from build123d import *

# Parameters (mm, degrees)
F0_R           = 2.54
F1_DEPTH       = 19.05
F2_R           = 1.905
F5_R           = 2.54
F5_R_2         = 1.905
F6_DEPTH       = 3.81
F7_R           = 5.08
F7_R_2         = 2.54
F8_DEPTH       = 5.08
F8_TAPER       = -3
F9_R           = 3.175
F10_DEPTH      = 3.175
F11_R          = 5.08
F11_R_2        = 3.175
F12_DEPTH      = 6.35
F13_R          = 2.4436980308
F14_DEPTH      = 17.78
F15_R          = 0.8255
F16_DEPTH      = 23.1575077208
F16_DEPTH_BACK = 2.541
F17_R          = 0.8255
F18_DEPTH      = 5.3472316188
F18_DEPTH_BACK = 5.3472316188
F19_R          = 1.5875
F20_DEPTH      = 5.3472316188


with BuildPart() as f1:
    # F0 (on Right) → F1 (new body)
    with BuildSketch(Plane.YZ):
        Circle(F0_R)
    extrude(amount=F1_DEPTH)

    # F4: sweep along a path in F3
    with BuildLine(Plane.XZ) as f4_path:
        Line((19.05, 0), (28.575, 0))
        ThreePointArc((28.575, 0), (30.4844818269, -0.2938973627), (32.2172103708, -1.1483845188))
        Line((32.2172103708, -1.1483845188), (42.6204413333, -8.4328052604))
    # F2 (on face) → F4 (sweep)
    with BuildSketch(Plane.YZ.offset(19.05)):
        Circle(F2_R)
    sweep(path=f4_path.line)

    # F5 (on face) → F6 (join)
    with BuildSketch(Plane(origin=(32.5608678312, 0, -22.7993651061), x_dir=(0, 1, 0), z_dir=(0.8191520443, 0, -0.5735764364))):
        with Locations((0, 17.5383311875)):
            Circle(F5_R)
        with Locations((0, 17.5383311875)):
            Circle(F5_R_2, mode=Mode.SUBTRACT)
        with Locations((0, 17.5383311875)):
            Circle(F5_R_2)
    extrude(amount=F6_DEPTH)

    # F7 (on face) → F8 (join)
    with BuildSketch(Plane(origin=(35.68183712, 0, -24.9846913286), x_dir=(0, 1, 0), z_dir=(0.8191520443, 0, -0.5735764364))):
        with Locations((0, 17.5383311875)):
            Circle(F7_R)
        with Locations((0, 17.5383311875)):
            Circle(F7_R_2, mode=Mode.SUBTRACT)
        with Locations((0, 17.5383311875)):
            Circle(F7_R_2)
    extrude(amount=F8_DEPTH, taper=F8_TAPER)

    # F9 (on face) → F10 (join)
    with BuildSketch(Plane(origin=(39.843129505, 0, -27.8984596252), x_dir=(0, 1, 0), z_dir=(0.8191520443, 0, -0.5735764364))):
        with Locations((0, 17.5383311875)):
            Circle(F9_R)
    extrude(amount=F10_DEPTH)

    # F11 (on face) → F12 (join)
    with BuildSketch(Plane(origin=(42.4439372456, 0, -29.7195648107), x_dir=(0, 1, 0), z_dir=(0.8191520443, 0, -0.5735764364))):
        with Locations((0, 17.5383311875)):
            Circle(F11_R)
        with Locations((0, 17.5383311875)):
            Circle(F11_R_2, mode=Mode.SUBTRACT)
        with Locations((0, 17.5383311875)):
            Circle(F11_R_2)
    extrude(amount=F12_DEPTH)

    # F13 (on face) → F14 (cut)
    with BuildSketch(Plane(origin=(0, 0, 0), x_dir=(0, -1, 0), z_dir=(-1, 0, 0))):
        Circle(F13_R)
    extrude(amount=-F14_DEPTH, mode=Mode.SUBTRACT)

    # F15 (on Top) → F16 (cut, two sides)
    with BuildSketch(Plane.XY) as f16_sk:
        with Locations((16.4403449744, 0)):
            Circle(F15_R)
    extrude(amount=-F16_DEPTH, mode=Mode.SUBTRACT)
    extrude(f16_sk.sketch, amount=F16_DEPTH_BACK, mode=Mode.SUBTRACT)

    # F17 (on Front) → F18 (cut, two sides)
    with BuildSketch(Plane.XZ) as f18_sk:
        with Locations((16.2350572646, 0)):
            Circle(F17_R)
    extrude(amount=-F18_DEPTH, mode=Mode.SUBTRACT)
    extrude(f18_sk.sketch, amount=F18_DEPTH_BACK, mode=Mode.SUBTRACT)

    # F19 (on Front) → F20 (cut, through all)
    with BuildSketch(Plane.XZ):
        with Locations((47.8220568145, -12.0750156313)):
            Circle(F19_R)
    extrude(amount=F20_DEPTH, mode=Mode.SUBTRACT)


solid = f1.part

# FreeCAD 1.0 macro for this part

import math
import FreeCAD as App
import Part
import Sketcher
Q = App.Units.Quantity

doc = App.newDocument("Part")
body = doc.addObject("PartDesign::Body", "Body")

# Sketch on YZ plane
sketch1 = body.newObject("Sketcher::SketchObject", "Sketch")
sketch1.AttachmentSupport = (doc.getObject("YZ_Plane"), [""])
sketch1.MapMode = "FlatFace"
sketch1.addGeometry(Part.Circle(App.Vector(0, 0, 0), App.Vector(0, 0, 1), 2.54), False)
sketch1.addConstraint(Sketcher.Constraint("Coincident", 0, 3, -1, 1))
sketch1.addConstraint(Sketcher.Constraint("Diameter", 0, Q("0.2 in")))
pad1 = body.newObject("PartDesign::Pad", "Pad")
pad1.Profile = sketch1
pad1.Length = Q("0.75 in")

# Sketch on YZ plane
sketch2 = body.newObject("Sketcher::SketchObject", "Sketch001")
sketch2.AttachmentSupport = (doc.getObject("YZ_Plane"), [""])
sketch2.MapMode = "FlatFace"
sketch2.AttachmentOffset = App.Placement(App.Vector(0, 0, 0.75 * 25.4), App.Rotation())
sketch2.addGeometry(Part.Circle(App.Vector(0, 0, 0), App.Vector(0, 0, 1), 1.905), False)
sketch2.addConstraint(Sketcher.Constraint("Coincident", 0, 3, -1, 1))
sketch2.addConstraint(Sketcher.Constraint("Diameter", 0, Q("0.15 in")))

# Sketch on XZ plane
sketch3 = body.newObject("Sketcher::SketchObject", "Sketch002")
sketch3.AttachmentSupport = (doc.getObject("XZ_Plane"), [""])
sketch3.MapMode = "FlatFace"
sketch3.addGeometry(Part.LineSegment(App.Vector(19.05, 0, 0), App.Vector(28.575, 0, 0)), False)
sketch3.addGeometry(Part.ArcOfCircle(Part.Circle(App.Vector(28.575, -6.35, 0), App.Vector(0, 0, 1), 6.35), math.radians(55), math.radians(90)), False)
sketch3.addGeometry(Part.LineSegment(App.Vector(32.21721, -1.148385, 0), App.Vector(42.620441, -8.432805, 0)), False)
sketch3.addConstraint(Sketcher.Constraint("Tangent", 0, 2, 1, 2))
sketch3.addConstraint(Sketcher.Constraint("Tangent", 1, 1, 2, 1))
sketch3.addConstraint(Sketcher.Constraint("Horizontal", 0))
sketch3.addConstraint(Sketcher.Constraint("PointOnObject", 0, 1, -1))
sketch3.addConstraint(Sketcher.Constraint("Radius", 1, Q("0.25 in")))
sketch3.addConstraint(Sketcher.Constraint("Angle", 2, Q("-35 deg")))
sketch3.addConstraint(Sketcher.Constraint("Distance", 2, Q("0.5 in")))
sketch3.addConstraint(Sketcher.Constraint("DistanceX", 0, 1, 0, 2, Q("0.375 in")))
sketch3.addConstraint(Sketcher.Constraint("DistanceX", -1, 1, 0, 1, Q("0.75 in")))
doc.recompute()

additivepipe = body.newObject("PartDesign::AdditivePipe", "AdditivePipe")
additivepipe.Profile = sketch2
additivepipe.Spine = (sketch3, ["Edge1", "Edge2", "Edge3"])

# Sketch on an angled plane
sketch4 = body.newObject("Sketcher::SketchObject", "Sketch003")
sketch4.Placement = App.Placement(App.Vector(32.560868, 0, -22.799365), App.Rotation(App.Vector(0, 1, 0), App.Vector(0.573576436, 0, 0.819152044), App.Vector(0.819152044, 0, -0.573576436), "ZXY"))
sketch4.addGeometry(Part.Circle(App.Vector(0, 17.538331, 0), App.Vector(0, 0, 1), 2.54), False)
sketch4.addConstraint(Sketcher.Constraint("PointOnObject", 0, 3, -2))
sketch4.addConstraint(Sketcher.Constraint("Diameter", 0, Q("0.2 in")))
sketch4.addConstraint(Sketcher.Constraint("DistanceY", -1, 1, 0, 3, 17.538331))
pad2 = body.newObject("PartDesign::Pad", "Pad001")
pad2.Profile = sketch4
pad2.Length = Q("0.15 in")

# Sketch on an angled plane
sketch5 = body.newObject("Sketcher::SketchObject", "Sketch004")
sketch5.Placement = App.Placement(App.Vector(35.681837, 0, -24.984691), App.Rotation(App.Vector(0, 1, 0), App.Vector(0.573576436, 0, 0.819152044), App.Vector(0.819152044, 0, -0.573576436), "ZXY"))
sketch5.addGeometry(Part.Circle(App.Vector(0, 17.538331, 0), App.Vector(0, 0, 1), 5.08), False)
sketch5.addConstraint(Sketcher.Constraint("PointOnObject", 0, 3, -2))
sketch5.addConstraint(Sketcher.Constraint("Diameter", 0, Q("0.4 in")))
sketch5.addConstraint(Sketcher.Constraint("DistanceY", -1, 1, 0, 3, 17.538331))
pad3 = body.newObject("PartDesign::Pad", "Pad002")
pad3.Profile = sketch5
pad3.Length = Q("0.2 in")
pad3.TaperAngle = 3

# Sketch on an angled plane
sketch6 = body.newObject("Sketcher::SketchObject", "Sketch005")
sketch6.Placement = App.Placement(App.Vector(39.84313, 0, -27.89846), App.Rotation(App.Vector(0, 1, 0), App.Vector(0.573576436, 0, 0.819152044), App.Vector(0.819152044, 0, -0.573576436), "ZXY"))
sketch6.addGeometry(Part.Circle(App.Vector(0, 17.538331, 0), App.Vector(0, 0, 1), 3.175), False)
sketch6.addConstraint(Sketcher.Constraint("PointOnObject", 0, 3, -2))
sketch6.addConstraint(Sketcher.Constraint("Diameter", 0, Q("0.25 in")))
sketch6.addConstraint(Sketcher.Constraint("DistanceY", -1, 1, 0, 3, 17.538331))
pad4 = body.newObject("PartDesign::Pad", "Pad003")
pad4.Profile = sketch6
pad4.Length = Q("0.125 in")

# Sketch on an angled plane
sketch7 = body.newObject("Sketcher::SketchObject", "Sketch006")
sketch7.Placement = App.Placement(App.Vector(42.443937, 0, -29.719565), App.Rotation(App.Vector(0, 1, 0), App.Vector(0.573576436, 0, 0.819152044), App.Vector(0.819152044, 0, -0.573576436), "ZXY"))
sketch7.addGeometry(Part.Circle(App.Vector(0, 17.538331, 0), App.Vector(0, 0, 1), 5.08), False)
sketch7.addConstraint(Sketcher.Constraint("PointOnObject", 0, 3, -2))
sketch7.addConstraint(Sketcher.Constraint("Diameter", 0, Q("0.4 in")))
sketch7.addConstraint(Sketcher.Constraint("DistanceY", -1, 1, 0, 3, 17.538331))
pad5 = body.newObject("PartDesign::Pad", "Pad004")
pad5.Profile = sketch7
pad5.Length = Q("0.25 in")

# Sketch on YZ plane
sketch8 = body.newObject("Sketcher::SketchObject", "Sketch007")
sketch8.AttachmentSupport = (doc.getObject("YZ_Plane"), [""])
sketch8.MapMode = "FlatFace"
sketch8.addGeometry(Part.Circle(App.Vector(0, 0, 0), App.Vector(0, 0, 1), 2.443698), False)
sketch8.addConstraint(Sketcher.Constraint("Coincident", 0, 3, -1, 1))
sketch8.addConstraint(Sketcher.Constraint("Diameter", 0, 4.887396))
pocket1 = body.newObject("PartDesign::Pocket", "Pocket")
pocket1.Profile = sketch8
pocket1.Length = Q("0.7 in")
pocket1.Reversed = True

# Sketch on XY plane
sketch9 = body.newObject("Sketcher::SketchObject", "Sketch008")
sketch9.AttachmentSupport = (doc.getObject("XY_Plane"), [""])
sketch9.MapMode = "FlatFace"
sketch9.addGeometry(Part.Circle(App.Vector(16.440345, 0, 0), App.Vector(0, 0, 1), 0.8255), False)
sketch9.addConstraint(Sketcher.Constraint("PointOnObject", 0, 3, -1))
sketch9.addConstraint(Sketcher.Constraint("Diameter", 0, Q("0.065 in")))
sketch9.addConstraint(Sketcher.Constraint("DistanceX", -1, 1, 0, 3, 16.440345))
pocket2 = body.newObject("PartDesign::Pocket", "Pocket001")
pocket2.Profile = sketch9
pocket2.Type = "ThroughAll"
pocket2.Midplane = True

# Sketch on XZ plane
sketch10 = body.newObject("Sketcher::SketchObject", "Sketch009")
sketch10.AttachmentSupport = (doc.getObject("XZ_Plane"), [""])
sketch10.MapMode = "FlatFace"
sketch10.addGeometry(Part.Circle(App.Vector(16.235057, 0, 0), App.Vector(0, 0, 1), 0.8255), False)
sketch10.addConstraint(Sketcher.Constraint("PointOnObject", 0, 3, -1))
sketch10.addConstraint(Sketcher.Constraint("Diameter", 0, Q("0.065 in")))
sketch10.addConstraint(Sketcher.Constraint("DistanceX", -1, 1, 0, 3, 16.235057))
pocket3 = body.newObject("PartDesign::Pocket", "Pocket002")
pocket3.Profile = sketch10
pocket3.Type = "ThroughAll"
pocket3.Midplane = True

# Sketch on XZ plane
sketch11 = body.newObject("Sketcher::SketchObject", "Sketch010")
sketch11.AttachmentSupport = (doc.getObject("XZ_Plane"), [""])
sketch11.MapMode = "FlatFace"
sketch11.addGeometry(Part.Circle(App.Vector(47.822057, -12.075016, 0), App.Vector(0, 0, 1), 1.5875), False)
sketch11.addConstraint(Sketcher.Constraint("Diameter", 0, Q("0.125 in")))
sketch11.addConstraint(Sketcher.Constraint("DistanceX", -1, 1, 0, 3, 47.822057))
sketch11.addConstraint(Sketcher.Constraint("DistanceY", 0, 3, -1, 1, 12.075016))
pocket4 = body.newObject("PartDesign::Pocket", "Pocket003")
pocket4.Profile = sketch11
pocket4.Type = "ThroughAll"
pocket4.Reversed = True

doc.recompute()
